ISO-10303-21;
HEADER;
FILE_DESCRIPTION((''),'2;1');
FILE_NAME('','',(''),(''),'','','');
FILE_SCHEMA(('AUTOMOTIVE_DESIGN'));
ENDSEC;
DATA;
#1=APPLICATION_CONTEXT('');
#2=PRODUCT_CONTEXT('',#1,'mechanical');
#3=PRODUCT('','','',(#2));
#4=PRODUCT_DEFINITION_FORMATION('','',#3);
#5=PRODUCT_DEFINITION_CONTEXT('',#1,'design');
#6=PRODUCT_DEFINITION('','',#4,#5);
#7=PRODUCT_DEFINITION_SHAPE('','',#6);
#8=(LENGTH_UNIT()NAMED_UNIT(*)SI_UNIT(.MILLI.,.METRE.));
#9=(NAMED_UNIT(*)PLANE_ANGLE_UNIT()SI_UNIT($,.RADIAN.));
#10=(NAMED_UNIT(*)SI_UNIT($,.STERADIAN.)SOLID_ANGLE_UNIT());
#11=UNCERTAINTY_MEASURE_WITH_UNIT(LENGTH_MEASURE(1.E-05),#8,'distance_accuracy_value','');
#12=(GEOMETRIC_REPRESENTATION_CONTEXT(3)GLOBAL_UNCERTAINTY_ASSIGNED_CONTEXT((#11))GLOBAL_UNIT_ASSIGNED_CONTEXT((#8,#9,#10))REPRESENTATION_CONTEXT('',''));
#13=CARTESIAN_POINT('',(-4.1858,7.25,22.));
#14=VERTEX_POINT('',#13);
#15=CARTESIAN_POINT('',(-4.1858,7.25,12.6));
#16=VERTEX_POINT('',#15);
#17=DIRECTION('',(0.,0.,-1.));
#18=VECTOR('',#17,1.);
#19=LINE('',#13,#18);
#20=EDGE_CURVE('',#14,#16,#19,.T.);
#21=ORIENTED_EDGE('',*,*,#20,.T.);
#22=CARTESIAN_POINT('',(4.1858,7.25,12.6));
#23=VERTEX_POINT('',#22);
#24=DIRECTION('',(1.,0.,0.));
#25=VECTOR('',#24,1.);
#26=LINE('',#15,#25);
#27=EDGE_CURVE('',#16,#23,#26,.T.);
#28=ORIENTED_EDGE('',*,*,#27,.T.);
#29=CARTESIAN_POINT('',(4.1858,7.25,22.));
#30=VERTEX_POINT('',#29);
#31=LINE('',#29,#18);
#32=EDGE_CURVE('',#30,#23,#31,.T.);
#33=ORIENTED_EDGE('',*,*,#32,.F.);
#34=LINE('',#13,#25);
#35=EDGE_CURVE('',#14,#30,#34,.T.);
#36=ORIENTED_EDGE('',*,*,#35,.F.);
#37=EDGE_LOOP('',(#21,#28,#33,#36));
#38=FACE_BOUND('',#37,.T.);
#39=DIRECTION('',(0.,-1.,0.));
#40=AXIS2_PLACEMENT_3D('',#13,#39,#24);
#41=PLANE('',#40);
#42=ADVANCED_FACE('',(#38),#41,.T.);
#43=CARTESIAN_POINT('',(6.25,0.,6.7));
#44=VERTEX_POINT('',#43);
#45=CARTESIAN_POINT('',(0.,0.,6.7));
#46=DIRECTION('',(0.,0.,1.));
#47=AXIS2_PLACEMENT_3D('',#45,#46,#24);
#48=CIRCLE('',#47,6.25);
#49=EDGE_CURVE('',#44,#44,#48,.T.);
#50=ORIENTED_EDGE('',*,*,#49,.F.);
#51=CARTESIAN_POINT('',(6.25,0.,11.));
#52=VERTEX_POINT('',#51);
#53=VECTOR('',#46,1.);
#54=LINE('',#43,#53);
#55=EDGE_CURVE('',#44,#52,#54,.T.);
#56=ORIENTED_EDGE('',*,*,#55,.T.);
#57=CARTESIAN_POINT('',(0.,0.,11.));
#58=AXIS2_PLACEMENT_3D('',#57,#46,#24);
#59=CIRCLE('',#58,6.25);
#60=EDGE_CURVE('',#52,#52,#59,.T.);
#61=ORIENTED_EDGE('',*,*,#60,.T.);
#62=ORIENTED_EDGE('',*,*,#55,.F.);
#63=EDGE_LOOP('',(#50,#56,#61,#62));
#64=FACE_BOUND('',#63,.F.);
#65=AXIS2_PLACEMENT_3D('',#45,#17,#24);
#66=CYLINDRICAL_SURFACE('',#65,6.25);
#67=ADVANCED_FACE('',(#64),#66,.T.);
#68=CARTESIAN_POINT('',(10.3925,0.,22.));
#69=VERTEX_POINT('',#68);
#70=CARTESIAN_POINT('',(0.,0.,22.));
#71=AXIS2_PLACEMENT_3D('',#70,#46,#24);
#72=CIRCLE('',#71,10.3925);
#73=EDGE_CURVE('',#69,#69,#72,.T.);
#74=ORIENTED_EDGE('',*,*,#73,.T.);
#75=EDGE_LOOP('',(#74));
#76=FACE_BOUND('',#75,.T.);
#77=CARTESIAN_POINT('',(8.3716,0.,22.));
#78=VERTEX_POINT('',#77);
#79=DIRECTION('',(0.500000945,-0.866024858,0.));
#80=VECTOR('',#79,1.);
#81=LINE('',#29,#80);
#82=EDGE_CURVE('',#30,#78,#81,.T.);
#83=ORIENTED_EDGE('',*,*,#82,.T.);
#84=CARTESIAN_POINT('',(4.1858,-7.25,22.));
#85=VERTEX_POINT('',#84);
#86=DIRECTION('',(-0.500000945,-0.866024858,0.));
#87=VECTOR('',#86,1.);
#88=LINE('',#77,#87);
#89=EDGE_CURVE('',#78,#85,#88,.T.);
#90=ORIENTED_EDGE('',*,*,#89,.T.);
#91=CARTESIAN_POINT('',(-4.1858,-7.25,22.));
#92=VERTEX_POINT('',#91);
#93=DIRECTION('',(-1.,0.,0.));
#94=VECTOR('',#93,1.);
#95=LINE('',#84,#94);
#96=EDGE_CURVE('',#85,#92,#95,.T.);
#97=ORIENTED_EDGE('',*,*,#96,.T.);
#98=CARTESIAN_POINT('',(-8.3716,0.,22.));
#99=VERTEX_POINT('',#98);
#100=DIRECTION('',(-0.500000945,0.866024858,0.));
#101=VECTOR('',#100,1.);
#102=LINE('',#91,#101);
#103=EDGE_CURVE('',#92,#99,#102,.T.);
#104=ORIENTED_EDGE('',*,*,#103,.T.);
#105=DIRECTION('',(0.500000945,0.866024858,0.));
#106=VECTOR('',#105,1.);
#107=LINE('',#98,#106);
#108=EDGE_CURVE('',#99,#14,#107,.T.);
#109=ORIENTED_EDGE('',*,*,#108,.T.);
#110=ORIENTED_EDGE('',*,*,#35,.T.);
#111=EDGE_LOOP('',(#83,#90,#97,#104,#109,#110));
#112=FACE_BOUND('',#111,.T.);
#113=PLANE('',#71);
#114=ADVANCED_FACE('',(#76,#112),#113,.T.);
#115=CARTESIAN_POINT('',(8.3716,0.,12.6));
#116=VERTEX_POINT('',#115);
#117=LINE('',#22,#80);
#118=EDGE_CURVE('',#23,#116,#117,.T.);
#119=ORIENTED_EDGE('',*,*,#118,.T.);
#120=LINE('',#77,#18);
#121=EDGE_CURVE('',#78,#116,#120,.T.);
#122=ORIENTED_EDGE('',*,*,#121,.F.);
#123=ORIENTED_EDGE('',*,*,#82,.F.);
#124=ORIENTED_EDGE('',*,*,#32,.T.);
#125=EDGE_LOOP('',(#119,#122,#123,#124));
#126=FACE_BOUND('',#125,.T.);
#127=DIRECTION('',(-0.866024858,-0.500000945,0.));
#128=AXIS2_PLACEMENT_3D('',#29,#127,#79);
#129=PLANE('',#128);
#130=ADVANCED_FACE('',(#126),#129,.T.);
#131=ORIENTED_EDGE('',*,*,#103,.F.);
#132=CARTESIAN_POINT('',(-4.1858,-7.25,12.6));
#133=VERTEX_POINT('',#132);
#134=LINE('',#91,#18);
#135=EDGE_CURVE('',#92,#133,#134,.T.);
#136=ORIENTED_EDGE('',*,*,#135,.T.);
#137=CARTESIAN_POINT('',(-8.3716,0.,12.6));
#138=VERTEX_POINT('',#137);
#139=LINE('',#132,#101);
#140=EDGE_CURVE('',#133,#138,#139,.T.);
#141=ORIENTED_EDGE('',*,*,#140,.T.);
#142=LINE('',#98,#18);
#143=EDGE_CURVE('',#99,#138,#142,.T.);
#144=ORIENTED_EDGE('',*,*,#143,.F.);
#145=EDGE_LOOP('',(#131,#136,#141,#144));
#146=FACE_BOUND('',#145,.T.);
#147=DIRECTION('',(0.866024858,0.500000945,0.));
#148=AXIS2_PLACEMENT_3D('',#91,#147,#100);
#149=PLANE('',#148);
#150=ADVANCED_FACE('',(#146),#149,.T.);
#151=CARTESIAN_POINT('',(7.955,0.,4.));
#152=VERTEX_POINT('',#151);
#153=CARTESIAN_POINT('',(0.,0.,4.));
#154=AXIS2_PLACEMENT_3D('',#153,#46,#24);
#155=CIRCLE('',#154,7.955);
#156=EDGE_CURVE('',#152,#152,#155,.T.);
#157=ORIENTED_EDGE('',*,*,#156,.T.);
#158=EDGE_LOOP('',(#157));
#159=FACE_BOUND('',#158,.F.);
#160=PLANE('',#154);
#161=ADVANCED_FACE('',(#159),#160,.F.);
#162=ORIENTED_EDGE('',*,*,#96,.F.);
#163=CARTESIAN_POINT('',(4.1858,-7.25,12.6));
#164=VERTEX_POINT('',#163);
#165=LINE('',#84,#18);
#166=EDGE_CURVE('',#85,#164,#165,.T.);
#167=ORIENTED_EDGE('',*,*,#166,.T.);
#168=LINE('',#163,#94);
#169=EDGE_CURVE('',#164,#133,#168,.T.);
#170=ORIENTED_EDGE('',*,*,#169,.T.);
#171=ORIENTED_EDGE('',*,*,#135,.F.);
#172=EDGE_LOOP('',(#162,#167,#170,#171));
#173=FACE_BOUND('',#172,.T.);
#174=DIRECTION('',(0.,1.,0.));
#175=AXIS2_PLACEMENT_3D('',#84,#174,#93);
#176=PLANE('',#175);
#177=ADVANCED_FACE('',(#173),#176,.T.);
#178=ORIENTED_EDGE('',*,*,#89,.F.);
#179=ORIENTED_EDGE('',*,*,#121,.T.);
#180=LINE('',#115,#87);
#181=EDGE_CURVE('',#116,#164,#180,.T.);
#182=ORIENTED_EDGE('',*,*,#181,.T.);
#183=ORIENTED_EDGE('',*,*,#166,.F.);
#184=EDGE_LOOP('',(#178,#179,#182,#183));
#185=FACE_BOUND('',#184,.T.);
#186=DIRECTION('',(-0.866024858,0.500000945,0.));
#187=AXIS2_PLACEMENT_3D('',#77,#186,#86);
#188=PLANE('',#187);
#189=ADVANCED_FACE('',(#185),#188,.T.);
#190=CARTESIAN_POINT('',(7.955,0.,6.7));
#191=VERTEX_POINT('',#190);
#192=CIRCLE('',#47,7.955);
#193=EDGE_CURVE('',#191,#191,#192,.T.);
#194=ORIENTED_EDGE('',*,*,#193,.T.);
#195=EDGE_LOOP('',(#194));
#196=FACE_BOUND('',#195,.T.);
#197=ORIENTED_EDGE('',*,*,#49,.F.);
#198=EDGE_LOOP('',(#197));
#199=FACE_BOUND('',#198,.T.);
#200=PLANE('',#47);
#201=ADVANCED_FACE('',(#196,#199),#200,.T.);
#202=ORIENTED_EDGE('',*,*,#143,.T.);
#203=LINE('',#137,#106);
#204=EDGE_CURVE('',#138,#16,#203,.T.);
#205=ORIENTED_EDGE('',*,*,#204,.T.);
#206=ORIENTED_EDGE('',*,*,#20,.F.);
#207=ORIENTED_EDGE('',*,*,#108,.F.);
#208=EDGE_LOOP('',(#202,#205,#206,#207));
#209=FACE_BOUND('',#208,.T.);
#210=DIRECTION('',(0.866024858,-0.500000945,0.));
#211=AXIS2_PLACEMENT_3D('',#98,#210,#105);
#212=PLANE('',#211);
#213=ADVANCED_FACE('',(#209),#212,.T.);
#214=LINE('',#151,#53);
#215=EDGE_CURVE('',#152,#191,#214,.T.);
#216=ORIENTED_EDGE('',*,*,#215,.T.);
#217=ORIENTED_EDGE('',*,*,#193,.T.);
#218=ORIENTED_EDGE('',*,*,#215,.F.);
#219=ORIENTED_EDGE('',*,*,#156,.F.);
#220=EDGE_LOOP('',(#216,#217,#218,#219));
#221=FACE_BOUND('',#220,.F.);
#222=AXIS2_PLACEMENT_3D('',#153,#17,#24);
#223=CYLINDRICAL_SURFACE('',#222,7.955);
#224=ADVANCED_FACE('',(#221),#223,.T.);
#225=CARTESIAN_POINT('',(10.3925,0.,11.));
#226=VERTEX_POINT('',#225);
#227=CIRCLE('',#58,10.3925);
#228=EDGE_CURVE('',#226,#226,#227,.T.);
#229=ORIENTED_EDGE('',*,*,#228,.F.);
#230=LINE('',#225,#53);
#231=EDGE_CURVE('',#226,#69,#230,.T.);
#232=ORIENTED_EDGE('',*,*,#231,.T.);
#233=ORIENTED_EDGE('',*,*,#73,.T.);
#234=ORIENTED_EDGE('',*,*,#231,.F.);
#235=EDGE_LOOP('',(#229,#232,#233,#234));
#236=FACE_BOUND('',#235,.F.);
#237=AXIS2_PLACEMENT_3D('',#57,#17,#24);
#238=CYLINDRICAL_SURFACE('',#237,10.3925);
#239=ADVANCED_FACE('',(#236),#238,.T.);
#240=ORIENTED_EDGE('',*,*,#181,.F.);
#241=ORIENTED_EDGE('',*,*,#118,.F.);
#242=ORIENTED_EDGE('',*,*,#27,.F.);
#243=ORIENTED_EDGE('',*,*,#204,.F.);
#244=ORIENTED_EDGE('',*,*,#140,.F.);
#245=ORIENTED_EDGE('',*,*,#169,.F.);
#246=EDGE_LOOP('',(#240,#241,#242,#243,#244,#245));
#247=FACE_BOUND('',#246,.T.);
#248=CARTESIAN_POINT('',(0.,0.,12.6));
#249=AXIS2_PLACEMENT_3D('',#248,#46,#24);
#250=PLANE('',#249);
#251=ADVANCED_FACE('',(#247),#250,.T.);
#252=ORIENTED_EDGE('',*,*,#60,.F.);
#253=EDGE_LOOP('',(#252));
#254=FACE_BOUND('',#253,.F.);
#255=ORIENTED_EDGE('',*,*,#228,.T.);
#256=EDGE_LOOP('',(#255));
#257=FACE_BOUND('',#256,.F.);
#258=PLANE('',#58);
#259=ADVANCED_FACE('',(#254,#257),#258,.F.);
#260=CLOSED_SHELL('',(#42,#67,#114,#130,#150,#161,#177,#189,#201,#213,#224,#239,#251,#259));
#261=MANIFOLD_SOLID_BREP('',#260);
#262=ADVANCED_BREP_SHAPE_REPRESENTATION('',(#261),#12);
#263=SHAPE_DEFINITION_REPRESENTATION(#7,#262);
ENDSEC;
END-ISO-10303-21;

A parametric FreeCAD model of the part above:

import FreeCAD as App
import Part
import Sketcher
Q = App.Units.Quantity


def add_polygon(sketch, points):
    """Adds a closed chain of lines whose ends are joined by coincident constraints."""
    first, n = sketch.GeometryCount, len(points)
    for a, b in zip(points, points[1:] + points[:1]):
        sketch.addGeometry(Part.LineSegment(App.Vector(*a, 0), App.Vector(*b, 0)), False)
    for i in range(n):
        sketch.addConstraint(Sketcher.Constraint("Coincident", first + i, 2, first + (i + 1) % n, 1))

doc = App.newDocument("Part")
body = doc.addObject("PartDesign::Body", "Body")

sketch1 = body.newObject("Sketcher::SketchObject", "Sketch")
sketch1.AttachmentSupport = (doc.getObject("XY_Plane"), [""])
sketch1.MapMode = "FlatFace"
sketch1.AttachmentOffset = App.Placement(App.Vector(0, 0, 4), App.Rotation())
sketch1.addGeometry(Part.Circle(App.Vector(0, 0, 0), App.Vector(0, 0, 1), 7.955), False)
sketch1.addConstraint([
    Sketcher.Constraint("Coincident", 0, 3, -1, 1),
    Sketcher.Constraint("Diameter", 0, Q("15.91 mm")),
])
pad1 = body.newObject("PartDesign::Pad", "Pad")
pad1.Profile = sketch1
pad1.Length = 2.7

sketch2 = body.newObject("Sketcher::SketchObject", "Sketch001")
sketch2.AttachmentSupport = (doc.getObject("XY_Plane"), [""])
sketch2.MapMode = "FlatFace"
sketch2.AttachmentOffset = App.Placement(App.Vector(0, 0, 6.7), App.Rotation())
sketch2.addGeometry(Part.Circle(App.Vector(0, 0, 0), App.Vector(0, 0, 1), 6.25), False)
sketch2.addConstraint([
    Sketcher.Constraint("Coincident", 0, 3, -1, 1),
    Sketcher.Constraint("Diameter", 0, Q("12.5 mm")),
])
pad2 = body.newObject("PartDesign::Pad", "Pad001")
pad2.Profile = sketch2
pad2.Length = 4.3

sketch3 = body.newObject("Sketcher::SketchObject", "Sketch002")
sketch3.AttachmentSupport = (doc.getObject("XY_Plane"), [""])
sketch3.MapMode = "FlatFace"
sketch3.AttachmentOffset = App.Placement(App.Vector(0, 0, 11), App.Rotation())
sketch3.addGeometry(Part.Circle(App.Vector(0, 0, 0), App.Vector(0, 0, 1), 10.3925), False)
sketch3.addConstraint([
    Sketcher.Constraint("Coincident", 0, 3, -1, 1),
    Sketcher.Constraint("Diameter", 0, Q("20.785 mm")),
])
pad3 = body.newObject("PartDesign::Pad", "Pad002")
pad3.Profile = sketch3
pad3.Length = 11

sketch4 = body.newObject("Sketcher::SketchObject", "Sketch003")
sketch4.AttachmentSupport = (doc.getObject("XY_Plane"), [""])
sketch4.MapMode = "FlatFace"
sketch4.AttachmentOffset = App.Placement(App.Vector(0, 0, 22), App.Rotation())
add_polygon(sketch4, [(-4.1858, 7.25), (-8.3716, 0), (-4.1858, -7.25), (4.1858, -7.25), (8.3716, 0), (4.1858, 7.25)])
sketch4.addConstraint([
    Sketcher.Constraint("Horizontal", 2),
    Sketcher.Constraint("Horizontal", 5),
    Sketcher.Constraint("Symmetric", 0, 2, 3, 2, -1, 1),
    Sketcher.Constraint("Symmetric", 1, 2, 4, 2, -1, 1),
    Sketcher.Constraint("PointOnObject", 0, 2, -1),
    Sketcher.Constraint("Parallel", 0, 3),
    Sketcher.Constraint("Vertical", 2, 2, 4, 2),
    Sketcher.Constraint("DistanceY", 2, 2, 4, 2, Q("14.5 mm")),
    Sketcher.Constraint("Angle", 0, Q("-120 deg")),
    Sketcher.Constraint("DistanceX", 2, 1, 2, 2, Q("8.3716 mm")),
])
pocket1 = body.newObject("PartDesign::Pocket", "Pocket")
pocket1.Profile = sketch4
pocket1.Length = 9.4

doc.recompute()
